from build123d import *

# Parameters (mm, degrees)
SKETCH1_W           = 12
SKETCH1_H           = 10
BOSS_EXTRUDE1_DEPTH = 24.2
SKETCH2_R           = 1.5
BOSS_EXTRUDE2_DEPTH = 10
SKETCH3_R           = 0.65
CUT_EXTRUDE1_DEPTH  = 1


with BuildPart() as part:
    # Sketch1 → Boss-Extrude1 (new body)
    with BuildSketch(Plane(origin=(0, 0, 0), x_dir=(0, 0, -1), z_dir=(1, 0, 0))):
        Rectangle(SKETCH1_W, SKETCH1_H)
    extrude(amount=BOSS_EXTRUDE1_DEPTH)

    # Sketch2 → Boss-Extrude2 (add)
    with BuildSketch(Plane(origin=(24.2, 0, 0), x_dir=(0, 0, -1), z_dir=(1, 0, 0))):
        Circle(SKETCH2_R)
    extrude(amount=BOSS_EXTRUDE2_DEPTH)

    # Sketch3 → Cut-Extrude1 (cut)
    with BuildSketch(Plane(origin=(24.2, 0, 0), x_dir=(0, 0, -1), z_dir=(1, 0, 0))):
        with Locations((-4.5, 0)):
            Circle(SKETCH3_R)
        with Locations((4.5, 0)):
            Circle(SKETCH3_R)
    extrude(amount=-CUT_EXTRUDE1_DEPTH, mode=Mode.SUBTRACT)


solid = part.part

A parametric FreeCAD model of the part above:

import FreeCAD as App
import Part
import Sketcher
Q = App.Units.Quantity


def add_polygon(sketch, points):
    """Adds a closed chain of lines whose ends are joined by coincident constraints."""
    first, n = sketch.GeometryCount, len(points)
    for a, b in zip(points, points[1:] + points[:1]):
        sketch.addGeometry(Part.LineSegment(App.Vector(*a, 0), App.Vector(*b, 0)), False)
    for i in range(n):
        sketch.addConstraint(Sketcher.Constraint("Coincident", first + i, 2, first + (i + 1) % n, 1))

doc = App.newDocument("Part")
body = doc.addObject("PartDesign::Body", "Body")

# Sketch on YZ plane
sketch1 = doc.addObject("Sketcher::SketchObject", "Sketch")
body.addObject(sketch1)
sketch1.AttachmentSupport = (doc.YZ_Plane, [""])
sketch1.MapMode = "FlatFace"
add_polygon(sketch1, [(5, 6), (-5, 6), (-5, -6), (5, -6)])  # lines 0-3
sketch1.addConstraint([
    Sketcher.Constraint("Horizontal", 0),
    Sketcher.Constraint("Vertical", 1),
    Sketcher.Constraint("Horizontal", 2),
    Sketcher.Constraint("Vertical", 3),
    Sketcher.Constraint("Symmetric", 0, 2, 2, 2, -1, 1),
    Sketcher.Constraint("DistanceX", 0, 2, 0, 1, Q("10 mm")),
    Sketcher.Constraint("DistanceY", 1, 2, 1, 1, Q("12 mm")),
])
pad1 = doc.addObject("PartDesign::Pad", "Pad")
body.addObject(pad1)
pad1.Profile = sketch1
pad1.Length = 24.2

# Sketch on YZ plane
sketch2 = doc.addObject("Sketcher::SketchObject", "Sketch001")
body.addObject(sketch2)
sketch2.AttachmentSupport = (doc.YZ_Plane, [""])
sketch2.MapMode = "FlatFace"
sketch2.AttachmentOffset = App.Placement(App.Vector(0, 0, 24.2), App.Rotation())
sketch2.addGeometry(Part.Circle(App.Vector(0, 0, 0), App.Vector(0, 0, 1), 1.5), False)
sketch2.addConstraint([
    Sketcher.Constraint("Coincident", 0, 3, -1, 1),
    Sketcher.Constraint("Diameter", 0, Q("3 mm")),
])
pad2 = doc.addObject("PartDesign::Pad", "Pad001")
body.addObject(pad2)
pad2.Profile = sketch2
pad2.Length = 10

# Sketch on YZ plane
sketch3 = doc.addObject("Sketcher::SketchObject", "Sketch002")
body.addObject(sketch3)
sketch3.AttachmentSupport = (doc.YZ_Plane, [""])
sketch3.MapMode = "FlatFace"
sketch3.AttachmentOffset = App.Placement(App.Vector(0, 0, 24.2), App.Rotation())
sketch3.addGeometry([
    Part.Circle(App.Vector(0, 4.5, 0), App.Vector(0, 0, 1), 0.7),
    Part.Circle(App.Vector(0, -4.5, 0), App.Vector(0, 0, 1), 0.7),
], False)
sketch3.addConstraint([
    Sketcher.Constraint("Equal", 0, 1),
    Sketcher.Constraint("Symmetric", 0, 3, 1, 3, -1, 1),
    Sketcher.Constraint("PointOnObject", 0, 3, -2),
    Sketcher.Constraint("Diameter", 0, Q("1.3 mm")),
    Sketcher.Constraint("DistanceY", 1, 3, 0, 3, Q("9 mm")),
])
pocket1 = doc.addObject("PartDesign::Pocket", "Pocket")
body.addObject(pocket1)
pocket1.Profile = sketch3
pocket1.Length = 1

doc.recompute()
